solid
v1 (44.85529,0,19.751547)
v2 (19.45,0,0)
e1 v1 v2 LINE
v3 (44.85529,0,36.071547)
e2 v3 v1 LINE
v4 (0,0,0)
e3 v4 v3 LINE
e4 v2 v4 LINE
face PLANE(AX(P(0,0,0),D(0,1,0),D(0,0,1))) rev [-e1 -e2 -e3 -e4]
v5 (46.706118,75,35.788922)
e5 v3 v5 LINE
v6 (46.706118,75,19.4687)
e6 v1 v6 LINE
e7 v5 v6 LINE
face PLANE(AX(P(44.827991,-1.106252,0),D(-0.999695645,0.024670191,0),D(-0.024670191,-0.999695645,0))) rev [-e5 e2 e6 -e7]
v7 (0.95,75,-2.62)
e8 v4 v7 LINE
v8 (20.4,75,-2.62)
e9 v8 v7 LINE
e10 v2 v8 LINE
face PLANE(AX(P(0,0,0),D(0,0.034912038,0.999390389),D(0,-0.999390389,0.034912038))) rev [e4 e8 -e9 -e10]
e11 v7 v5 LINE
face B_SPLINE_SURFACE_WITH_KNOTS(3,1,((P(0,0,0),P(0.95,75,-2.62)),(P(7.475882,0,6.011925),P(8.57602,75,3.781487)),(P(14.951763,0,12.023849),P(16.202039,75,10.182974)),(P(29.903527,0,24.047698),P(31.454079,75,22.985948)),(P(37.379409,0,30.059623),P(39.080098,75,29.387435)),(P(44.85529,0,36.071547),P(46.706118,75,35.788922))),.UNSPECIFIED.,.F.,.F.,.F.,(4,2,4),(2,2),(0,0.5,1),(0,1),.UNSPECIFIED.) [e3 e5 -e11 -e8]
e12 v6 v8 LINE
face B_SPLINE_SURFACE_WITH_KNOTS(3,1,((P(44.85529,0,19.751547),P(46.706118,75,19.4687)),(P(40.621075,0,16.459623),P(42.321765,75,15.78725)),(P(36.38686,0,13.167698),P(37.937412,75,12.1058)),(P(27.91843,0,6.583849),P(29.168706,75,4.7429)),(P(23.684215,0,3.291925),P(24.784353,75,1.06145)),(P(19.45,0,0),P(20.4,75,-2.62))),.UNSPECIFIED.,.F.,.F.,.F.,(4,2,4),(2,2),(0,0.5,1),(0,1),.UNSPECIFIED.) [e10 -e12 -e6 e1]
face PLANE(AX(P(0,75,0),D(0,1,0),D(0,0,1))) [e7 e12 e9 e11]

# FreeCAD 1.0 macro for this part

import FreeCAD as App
import Part
import Sketcher

V = App.Vector
Q = App.Units.Quantity

doc = App.newDocument("Part")
body = doc.addObject("PartDesign::Body", "Body")

# Sketch on XZ plane
sketch1 = body.newObject("Sketcher::SketchObject", "Sketch")
sketch1.AttachmentSupport = (doc.getObject("XZ_Plane"), [""])
sketch1.MapMode = "FlatFace"
sketch1.addGeometry(Part.LineSegment(V(19, 0, 0), V(0, 0, 0)), False)
sketch1.addGeometry(Part.LineSegment(V(0, 0, 0), V(45, 36, 0)), False)
sketch1.addGeometry(Part.LineSegment(V(45, 36, 0), V(45, 20, 0)), False)
sketch1.addGeometry(Part.LineSegment(V(45, 20, 0), V(19, 0, 0)), False)
sketch1.addConstraint(Sketcher.Constraint("Coincident", 0, 2, 1, 1))
sketch1.addConstraint(Sketcher.Constraint("Coincident", 1, 2, 2, 1))
sketch1.addConstraint(Sketcher.Constraint("Coincident", 2, 2, 3, 1))
sketch1.addConstraint(Sketcher.Constraint("Coincident", 3, 2, 0, 1))
sketch1.addConstraint(Sketcher.Constraint("Horizontal", 0))
sketch1.addConstraint(Sketcher.Constraint("Vertical", 2))
sketch1.addConstraint(Sketcher.Constraint("Coincident", 0, 2, -1, 1))
sketch1.addConstraint(Sketcher.Constraint("DistanceX", 0, 2, 0, 1, Q("19.45 mm")))
sketch1.addConstraint(Sketcher.Constraint("DistanceY", 2, 2, 2, 1, Q("16.32 mm")))
sketch1.addConstraint(Sketcher.Constraint("Distance", 1, Q("57.56 mm")))
sketch1.addConstraint(Sketcher.Constraint("Distance", 3, Q("32.18 mm")))

# Sketch on XZ plane
sketch2 = body.newObject("Sketcher::SketchObject", "Sketch001")
sketch2.AttachmentSupport = (doc.getObject("XZ_Plane"), [""])
sketch2.MapMode = "FlatFace"
sketch2.AttachmentOffset = App.Placement(V(0, 0, -75), App.Rotation())
sketch2.addGeometry(Part.LineSegment(V(20, -3, 0), V(1, -3, 0)), False)
sketch2.addGeometry(Part.LineSegment(V(1, -3, 0), V(47, 36, 0)), False)
sketch2.addGeometry(Part.LineSegment(V(47, 36, 0), V(47, 19, 0)), False)
sketch2.addGeometry(Part.LineSegment(V(47, 19, 0), V(20, -3, 0)), False)
sketch2.addConstraint(Sketcher.Constraint("Coincident", 0, 2, 1, 1))
sketch2.addConstraint(Sketcher.Constraint("Coincident", 1, 2, 2, 1))
sketch2.addConstraint(Sketcher.Constraint("Coincident", 2, 2, 3, 1))
sketch2.addConstraint(Sketcher.Constraint("Coincident", 3, 2, 0, 1))
sketch2.addConstraint(Sketcher.Constraint("Horizontal", 0))
sketch2.addConstraint(Sketcher.Constraint("Vertical", 2))
sketch2.addConstraint(Sketcher.Constraint("DistanceX", 0, 2, 0, 1, Q("19.45 mm")))
sketch2.addConstraint(Sketcher.Constraint("DistanceX", -1, 1, 3, 2, Q("20.4 mm")))
sketch2.addConstraint(Sketcher.Constraint("Distance", 1, Q("59.74 mm")))
sketch2.addConstraint(Sketcher.Constraint("Distance", 3, Q("34.35 mm")))
sketch2.addConstraint(Sketcher.Constraint("DistanceY", 0, 2, -1, 1, Q("2.62 mm")))
sketch2.addConstraint(Sketcher.Constraint("DistanceY", -1, 1, 2, 2, Q("19.4687 mm")))

additiveloft = body.newObject("PartDesign::AdditiveLoft", "AdditiveLoft")
additiveloft.Profile = sketch1
additiveloft.Sections = [sketch2]

doc.recompute()
